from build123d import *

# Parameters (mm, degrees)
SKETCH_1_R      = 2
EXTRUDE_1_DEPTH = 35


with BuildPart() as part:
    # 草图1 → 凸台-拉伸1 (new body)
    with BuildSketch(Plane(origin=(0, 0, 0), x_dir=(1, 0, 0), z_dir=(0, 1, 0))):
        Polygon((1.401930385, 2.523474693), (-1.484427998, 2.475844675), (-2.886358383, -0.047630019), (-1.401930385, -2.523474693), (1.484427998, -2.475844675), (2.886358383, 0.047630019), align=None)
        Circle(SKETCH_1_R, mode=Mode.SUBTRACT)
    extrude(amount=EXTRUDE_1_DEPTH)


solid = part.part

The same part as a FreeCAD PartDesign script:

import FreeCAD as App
import Part
import Sketcher


def add_polygon(sketch, points):
    """Adds a closed chain of lines whose ends are joined by coincident constraints."""
    first, n = sketch.GeometryCount, len(points)
    for a, b in zip(points, points[1:] + points[:1]):
        sketch.addGeometry(Part.LineSegment(App.Vector(*a, 0), App.Vector(*b, 0)), False)
    for i in range(n):
        sketch.addConstraint(Sketcher.Constraint("Coincident", first + i, 2, first + (i + 1) % n, 1))

doc = App.newDocument("Part")
body = doc.addObject("PartDesign::Body", "Body")

# Sketch on XZ plane
sketch1 = body.newObject("Sketcher::SketchObject", "Sketch")
sketch1.AttachmentSupport = (doc.getObject("XZ_Plane"), [""])
sketch1.MapMode = "FlatFace"
add_polygon(sketch1, [(1.4, -2.5), (-1.5, -2.5), (-2.9, 0), (-1.4, 2.5), (1.5, 2.5), (2.9, 0)])  # lines 0-5
sketch1.addGeometry(Part.Circle(App.Vector(0, 0, 0), App.Vector(0, 0, 1), 2), False)  # 6
sketch1.addConstraint([
    Sketcher.Constraint("Coincident", 6, 3, -1, 1),
    Sketcher.Constraint("Symmetric", 0, 2, 3, 2, -1, 1),
    Sketcher.Constraint("Symmetric", 1, 2, 4, 2, -1, 1),
    Sketcher.Constraint("Symmetric", 2, 2, 5, 2, -1, 1),
    Sketcher.Constraint("Equal", 0, 1),
    Sketcher.Constraint("Equal", 1, 2),
    Sketcher.Constraint("Diameter", 6, 4.0),
    Sketcher.Constraint("Distance", 0, 2.886751),
    Sketcher.Constraint("DistanceX", 1, 2, -1, 1, 2.886358),
    Sketcher.Constraint("DistanceY", -1, 1, 1, 2, 0.04763),
    Sketcher.Constraint("DistanceX", 2, 2, -1, 1, 1.40193),
])
pad1 = body.newObject("PartDesign::Pad", "Pad")
pad1.Profile = sketch1
pad1.Length = 35
pad1.Reversed = True

doc.recompute()
